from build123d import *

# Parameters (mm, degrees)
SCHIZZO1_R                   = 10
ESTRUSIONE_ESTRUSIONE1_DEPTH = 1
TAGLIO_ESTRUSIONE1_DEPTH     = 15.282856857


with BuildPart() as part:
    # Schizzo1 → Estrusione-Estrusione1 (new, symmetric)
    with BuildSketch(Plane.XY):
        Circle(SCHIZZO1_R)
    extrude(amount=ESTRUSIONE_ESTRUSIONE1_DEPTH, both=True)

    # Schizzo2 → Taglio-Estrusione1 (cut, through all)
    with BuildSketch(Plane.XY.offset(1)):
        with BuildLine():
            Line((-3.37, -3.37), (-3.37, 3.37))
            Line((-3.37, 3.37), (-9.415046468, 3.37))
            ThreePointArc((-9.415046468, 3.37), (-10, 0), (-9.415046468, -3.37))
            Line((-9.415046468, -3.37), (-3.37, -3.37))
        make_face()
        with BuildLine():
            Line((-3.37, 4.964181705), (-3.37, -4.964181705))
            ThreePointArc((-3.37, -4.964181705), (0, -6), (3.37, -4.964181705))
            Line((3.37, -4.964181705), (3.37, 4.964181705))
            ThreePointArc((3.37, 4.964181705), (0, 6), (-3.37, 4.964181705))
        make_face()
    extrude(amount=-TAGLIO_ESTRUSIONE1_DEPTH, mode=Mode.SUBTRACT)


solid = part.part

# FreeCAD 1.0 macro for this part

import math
import FreeCAD as App
import Part
import Sketcher

V = App.Vector

doc = App.newDocument("Part")
body = doc.addObject("PartDesign::Body", "Body")

# Sketch on XY plane
sketch1 = doc.addObject("Sketcher::SketchObject", "Sketch")
body.addObject(sketch1)
sketch1.AttachmentSupport = (doc.XY_Plane, [""])
sketch1.MapMode = "FlatFace"
sketch1.addGeometry(Part.Circle(V(0, 0, 0), V(0, 0, 1), 10), False)
sketch1.addConstraint(Sketcher.Constraint("Coincident", 0, 3, -1, 1))
sketch1.addConstraint(Sketcher.Constraint("Diameter", 0, 20.0))
pad1 = doc.addObject("PartDesign::Pad", "Pad")
body.addObject(pad1)
pad1.Profile = sketch1
pad1.Length = 2
pad1.Midplane = True

# Sketch on XY plane
sketch2 = doc.addObject("Sketcher::SketchObject", "Sketch001")
body.addObject(sketch2)
sketch2.AttachmentSupport = (doc.XY_Plane, [""])
sketch2.MapMode = "FlatFace"
sketch2.AttachmentOffset = App.Placement(V(0, 0, 1), App.Rotation())
sketch2.addGeometry(Part.LineSegment(V(-3.4, 3.4, 0), V(-9.4, 3.4, 0)), False)
sketch2.addGeometry(Part.ArcOfCircle(Part.Circle(V(0, 0, 0), V(0, 0, 1), 10), math.radians(160), math.radians(200)), False)
sketch2.addGeometry(Part.LineSegment(V(-9.4, -3.4, 0), V(-3.4, -3.4, 0)), False)
sketch2.addGeometry(Part.LineSegment(V(-3.4, -3.4, 0), V(-3.4, -5, 0)), False)
sketch2.addGeometry(Part.ArcOfCircle(Part.Circle(V(0, 0, 0), V(0, 0, 1), 6), math.radians(-124), math.radians(-56)), False)
sketch2.addGeometry(Part.LineSegment(V(3.4, -5, 0), V(3.4, 5, 0)), False)
sketch2.addGeometry(Part.ArcOfCircle(Part.Circle(V(0, 0, 0), V(0, 0, 1), 6), math.radians(56), math.radians(124)), False)
sketch2.addGeometry(Part.LineSegment(V(-3.4, 5, 0), V(-3.4, 3.4, 0)), False)
sketch2.addConstraint(Sketcher.Constraint("Coincident", 0, 2, 1, 1))
sketch2.addConstraint(Sketcher.Constraint("Coincident", 1, 2, 2, 1))
sketch2.addConstraint(Sketcher.Constraint("Coincident", 2, 2, 3, 1))
sketch2.addConstraint(Sketcher.Constraint("Coincident", 3, 2, 4, 1))
sketch2.addConstraint(Sketcher.Constraint("Coincident", 4, 2, 5, 1))
sketch2.addConstraint(Sketcher.Constraint("Coincident", 5, 2, 6, 1))
sketch2.addConstraint(Sketcher.Constraint("Coincident", 6, 2, 7, 1))
sketch2.addConstraint(Sketcher.Constraint("Coincident", 7, 2, 0, 1))
sketch2.addConstraint(Sketcher.Constraint("Horizontal", 0))
sketch2.addConstraint(Sketcher.Constraint("Horizontal", 2))
sketch2.addConstraint(Sketcher.Constraint("Vertical", 3))
sketch2.addConstraint(Sketcher.Constraint("Vertical", 5))
sketch2.addConstraint(Sketcher.Constraint("Vertical", 7))
sketch2.addConstraint(Sketcher.Constraint("Coincident", 1, 3, -1, 1))
sketch2.addConstraint(Sketcher.Constraint("Coincident", 4, 3, -1, 1))
sketch2.addConstraint(Sketcher.Constraint("Coincident", 6, 3, -1, 1))
sketch2.addConstraint(Sketcher.Constraint("Equal", 4, 6))
sketch2.addConstraint(Sketcher.Constraint("Symmetric", 2, 2, 7, 2, -1))
sketch2.addConstraint(Sketcher.Constraint("Horizontal", 3, 2, 4, 2))
sketch2.addConstraint(Sketcher.Constraint("Radius", 1, 10.0))
sketch2.addConstraint(Sketcher.Constraint("Radius", 4, 6.0))
sketch2.addConstraint(Sketcher.Constraint("DistanceY", -1, 1, 0, 2, 3.37))
sketch2.addConstraint(Sketcher.Constraint("DistanceX", 2, 2, -1, 1, 3.37))
pocket1 = doc.addObject("PartDesign::Pocket", "Pocket")
body.addObject(pocket1)
pocket1.Profile = sketch2
pocket1.Type = "ThroughAll"

doc.recompute()
